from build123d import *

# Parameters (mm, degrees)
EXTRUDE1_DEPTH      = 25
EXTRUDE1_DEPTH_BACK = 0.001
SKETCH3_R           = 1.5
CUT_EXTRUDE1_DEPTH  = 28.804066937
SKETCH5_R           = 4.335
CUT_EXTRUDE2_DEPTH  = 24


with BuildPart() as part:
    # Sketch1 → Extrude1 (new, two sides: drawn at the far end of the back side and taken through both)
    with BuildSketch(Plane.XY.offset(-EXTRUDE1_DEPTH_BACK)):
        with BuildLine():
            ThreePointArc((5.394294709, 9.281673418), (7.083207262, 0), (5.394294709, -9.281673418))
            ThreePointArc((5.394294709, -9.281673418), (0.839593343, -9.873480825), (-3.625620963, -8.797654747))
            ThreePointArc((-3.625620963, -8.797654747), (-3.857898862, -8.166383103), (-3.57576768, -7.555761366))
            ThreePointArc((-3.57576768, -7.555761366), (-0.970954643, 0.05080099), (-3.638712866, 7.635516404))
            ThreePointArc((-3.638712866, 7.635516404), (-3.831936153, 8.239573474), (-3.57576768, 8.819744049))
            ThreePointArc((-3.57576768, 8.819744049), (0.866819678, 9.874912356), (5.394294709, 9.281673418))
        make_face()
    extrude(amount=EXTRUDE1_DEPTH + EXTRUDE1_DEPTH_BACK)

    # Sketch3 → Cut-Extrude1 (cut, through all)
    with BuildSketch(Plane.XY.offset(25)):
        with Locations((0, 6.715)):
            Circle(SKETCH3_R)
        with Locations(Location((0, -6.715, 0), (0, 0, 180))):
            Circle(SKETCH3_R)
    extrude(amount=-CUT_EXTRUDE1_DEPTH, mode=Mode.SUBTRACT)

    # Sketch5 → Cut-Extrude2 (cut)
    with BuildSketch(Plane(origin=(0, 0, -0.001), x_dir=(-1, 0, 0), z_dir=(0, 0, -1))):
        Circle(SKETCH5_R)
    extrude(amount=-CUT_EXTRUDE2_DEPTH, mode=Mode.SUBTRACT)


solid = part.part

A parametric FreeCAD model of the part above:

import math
import FreeCAD as App
import Part
import Sketcher

doc = App.newDocument("Part")
body = doc.addObject("PartDesign::Body", "Body")

# Sketch on XY plane
sketch1 = body.newObject("Sketcher::SketchObject", "Sketch")
sketch1.AttachmentSupport = (doc.getObject("XY_Plane"), [""])
sketch1.MapMode = "FlatFace"
sketch1.addGeometry([
    Part.ArcOfCircle(Part.Circle(App.Vector(-19.3, 0, 0), App.Vector(0, 0, 1), 26.3), math.radians(-21), math.radians(21)),  # 0
    Part.ArcOfCircle(Part.Circle(App.Vector(1.5, -2.7, 0), App.Vector(0, 0, 1), 12.6), math.radians(72), math.radians(114)),  # 1
    Part.ArcOfCircle(Part.Circle(App.Vector(-2.9, 8.2, 0), App.Vector(0, 0, 1), 0.9), math.radians(135), math.radians(219)),  # 2
    Part.ArcOfCircle(Part.Circle(App.Vector(-13.2, 0, 0), App.Vector(0, 0, 1), 12.3), math.radians(-38), math.radians(39)),  # 3
    Part.ArcOfCircle(Part.Circle(App.Vector(-3, -8.2, 0), App.Vector(0, 0, 1), 0.9), math.radians(133), math.radians(223)),  # 4
    Part.ArcOfCircle(Part.Circle(App.Vector(1.5, 2.7, 0), App.Vector(0, 0, 1), 12.6), math.radians(-114), math.radians(-72)),  # 5
], False)
sketch1.addConstraint([
    Sketcher.Constraint("Coincident", 0, 2, 1, 1),
    Sketcher.Constraint("Coincident", 1, 2, 2, 1),
    Sketcher.Constraint("Tangent", 2, 2, 3, 2),
    Sketcher.Constraint("Coincident", 3, 1, 4, 1),
    Sketcher.Constraint("Coincident", 4, 2, 5, 1),
    Sketcher.Constraint("Coincident", 5, 2, 0, 1),
    Sketcher.Constraint("Equal", 1, 5),
    Sketcher.Constraint("Symmetric", 1, 3, 5, 3, -1),
    Sketcher.Constraint("PointOnObject", 0, 3, -1),
    Sketcher.Constraint("PointOnObject", 3, 3, -1),
    Sketcher.Constraint("Vertical", 1, 2, 3, 1),
    Sketcher.Constraint("Radius", 2, 0.893771),
    Sketcher.Constraint("Radius", 4, 0.878858),
    Sketcher.Constraint("Radius", 0, 26.348874),
    Sketcher.Constraint("Radius", 1, 12.631813),
    Sketcher.Constraint("Radius", 3, 12.260486),
    Sketcher.Constraint("DistanceY", 1, 3, 2, 2, 10.375701),
    Sketcher.Constraint("DistanceY", 3, 1, -1, 1, 7.555761),
    Sketcher.Constraint("DistanceX", 4, 2, -1, 1, 3.625621),
    Sketcher.Constraint("DistanceX", 2, 3, 1, 3, 4.455882),
    Sketcher.Constraint("DistanceX", 0, 3, 2, 3, 16.326241),
    Sketcher.Constraint("DistanceY", 4, 3, 1, 3, 5.461451),
])
pad1 = body.newObject("PartDesign::Pad", "Pad")
pad1.Profile = sketch1
pad1.Type = "TwoLengths"
pad1.Length = 25
pad1.Length2 = 0.001

# Sketch on XY plane
sketch2 = body.newObject("Sketcher::SketchObject", "Sketch001")
sketch2.AttachmentSupport = (doc.getObject("XY_Plane"), [""])
sketch2.MapMode = "FlatFace"
sketch2.AttachmentOffset = App.Placement(App.Vector(0, 0, 25), App.Rotation())
sketch2.addGeometry([
    Part.Circle(App.Vector(0, 6.7, 0), App.Vector(0, 0, 1), 1.5),
    Part.Circle(App.Vector(0, -6.7, 0), App.Vector(0, 0, 1), 1.5),
], False)
sketch2.addConstraint([
    Sketcher.Constraint("Equal", 0, 1),
    Sketcher.Constraint("Symmetric", 0, 3, 1, 3, -1, 1),
    Sketcher.Constraint("PointOnObject", 0, 3, -2),
    Sketcher.Constraint("Diameter", 0, 3.0),
    Sketcher.Constraint("DistanceY", 1, 3, 0, 3, 13.43),
])
pocket1 = body.newObject("PartDesign::Pocket", "Pocket")
pocket1.Profile = sketch2
pocket1.Type = "ThroughAll"

# Sketch on XY plane
sketch3 = body.newObject("Sketcher::SketchObject", "Sketch002")
sketch3.AttachmentSupport = (doc.getObject("XY_Plane"), [""])
sketch3.MapMode = "FlatFace"
sketch3.AttachmentOffset = App.Placement(App.Vector(0, 0, -0.001), App.Rotation())
sketch3.addGeometry(Part.Circle(App.Vector(0, 0, 0), App.Vector(0, 0, 1), 4.3), False)
sketch3.addConstraint([
    Sketcher.Constraint("Coincident", 0, 3, -1, 1),
    Sketcher.Constraint("Diameter", 0, 8.67),
])
pocket2 = body.newObject("PartDesign::Pocket", "Pocket001")
pocket2.Profile = sketch3
pocket2.Length = 24
pocket2.Reversed = True

doc.recompute()
